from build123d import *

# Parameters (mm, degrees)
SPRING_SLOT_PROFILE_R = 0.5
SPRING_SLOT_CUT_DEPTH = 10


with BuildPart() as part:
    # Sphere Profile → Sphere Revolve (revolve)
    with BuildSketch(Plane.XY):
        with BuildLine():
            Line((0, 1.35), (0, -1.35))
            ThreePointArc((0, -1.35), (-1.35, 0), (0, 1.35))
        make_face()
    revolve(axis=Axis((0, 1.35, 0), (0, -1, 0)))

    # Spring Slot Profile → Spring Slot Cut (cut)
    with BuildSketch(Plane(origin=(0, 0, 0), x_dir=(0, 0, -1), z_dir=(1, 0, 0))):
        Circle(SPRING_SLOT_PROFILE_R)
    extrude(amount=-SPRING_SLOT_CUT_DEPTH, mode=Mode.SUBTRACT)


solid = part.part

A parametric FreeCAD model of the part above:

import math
import FreeCAD as App
import Part
import Sketcher

doc = App.newDocument("Part")
body = doc.addObject("PartDesign::Body", "Body")

# Sketch on XY plane
sketch1 = doc.addObject("Sketcher::SketchObject", "Sketch")
body.addObject(sketch1)
sketch1.AttachmentSupport = (doc.XY_Plane, [""])
sketch1.MapMode = "FlatFace"
sketch1.addGeometry(Part.LineSegment(App.Vector(0, -1.35, 0), App.Vector(0, 1.35, 0)), False)
sketch1.addGeometry(Part.ArcOfCircle(Part.Circle(App.Vector(0, 0, 0), App.Vector(0, 0, 1), 1.35), math.radians(90), math.radians(270)), False)
sketch1.addConstraint(Sketcher.Constraint("Coincident", 0, 1, 1, 2))
sketch1.addConstraint(Sketcher.Constraint("Coincident", 1, 1, 0, 2))
sketch1.addConstraint(Sketcher.Constraint("Vertical", 0))
sketch1.addConstraint(Sketcher.Constraint("Coincident", 1, 3, -1, 1))
sketch1.addConstraint(Sketcher.Constraint("PointOnObject", 0, 1, -2))
sketch1.addConstraint(Sketcher.Constraint("Radius", 1, 1.35))
revolution = doc.addObject("PartDesign::Revolution", "Revolution")
body.addObject(revolution)
revolution.Profile = sketch1
revolution.ReferenceAxis = (sketch1, ["V_Axis"])
revolution.Angle = 360

# Sketch on YZ plane
sketch2 = doc.addObject("Sketcher::SketchObject", "Sketch001")
body.addObject(sketch2)
sketch2.AttachmentSupport = (doc.YZ_Plane, [""])
sketch2.MapMode = "FlatFace"
sketch2.addGeometry(Part.Circle(App.Vector(0, 0, 0), App.Vector(0, 0, 1), 0.5), False)
sketch2.addConstraint(Sketcher.Constraint("Coincident", 0, 3, -1, 1))
sketch2.addConstraint(Sketcher.Constraint("Diameter", 0, 1.0))
pocket1 = doc.addObject("PartDesign::Pocket", "Pocket")
body.addObject(pocket1)
pocket1.Profile = sketch2
pocket1.Length = 10

doc.recompute()
